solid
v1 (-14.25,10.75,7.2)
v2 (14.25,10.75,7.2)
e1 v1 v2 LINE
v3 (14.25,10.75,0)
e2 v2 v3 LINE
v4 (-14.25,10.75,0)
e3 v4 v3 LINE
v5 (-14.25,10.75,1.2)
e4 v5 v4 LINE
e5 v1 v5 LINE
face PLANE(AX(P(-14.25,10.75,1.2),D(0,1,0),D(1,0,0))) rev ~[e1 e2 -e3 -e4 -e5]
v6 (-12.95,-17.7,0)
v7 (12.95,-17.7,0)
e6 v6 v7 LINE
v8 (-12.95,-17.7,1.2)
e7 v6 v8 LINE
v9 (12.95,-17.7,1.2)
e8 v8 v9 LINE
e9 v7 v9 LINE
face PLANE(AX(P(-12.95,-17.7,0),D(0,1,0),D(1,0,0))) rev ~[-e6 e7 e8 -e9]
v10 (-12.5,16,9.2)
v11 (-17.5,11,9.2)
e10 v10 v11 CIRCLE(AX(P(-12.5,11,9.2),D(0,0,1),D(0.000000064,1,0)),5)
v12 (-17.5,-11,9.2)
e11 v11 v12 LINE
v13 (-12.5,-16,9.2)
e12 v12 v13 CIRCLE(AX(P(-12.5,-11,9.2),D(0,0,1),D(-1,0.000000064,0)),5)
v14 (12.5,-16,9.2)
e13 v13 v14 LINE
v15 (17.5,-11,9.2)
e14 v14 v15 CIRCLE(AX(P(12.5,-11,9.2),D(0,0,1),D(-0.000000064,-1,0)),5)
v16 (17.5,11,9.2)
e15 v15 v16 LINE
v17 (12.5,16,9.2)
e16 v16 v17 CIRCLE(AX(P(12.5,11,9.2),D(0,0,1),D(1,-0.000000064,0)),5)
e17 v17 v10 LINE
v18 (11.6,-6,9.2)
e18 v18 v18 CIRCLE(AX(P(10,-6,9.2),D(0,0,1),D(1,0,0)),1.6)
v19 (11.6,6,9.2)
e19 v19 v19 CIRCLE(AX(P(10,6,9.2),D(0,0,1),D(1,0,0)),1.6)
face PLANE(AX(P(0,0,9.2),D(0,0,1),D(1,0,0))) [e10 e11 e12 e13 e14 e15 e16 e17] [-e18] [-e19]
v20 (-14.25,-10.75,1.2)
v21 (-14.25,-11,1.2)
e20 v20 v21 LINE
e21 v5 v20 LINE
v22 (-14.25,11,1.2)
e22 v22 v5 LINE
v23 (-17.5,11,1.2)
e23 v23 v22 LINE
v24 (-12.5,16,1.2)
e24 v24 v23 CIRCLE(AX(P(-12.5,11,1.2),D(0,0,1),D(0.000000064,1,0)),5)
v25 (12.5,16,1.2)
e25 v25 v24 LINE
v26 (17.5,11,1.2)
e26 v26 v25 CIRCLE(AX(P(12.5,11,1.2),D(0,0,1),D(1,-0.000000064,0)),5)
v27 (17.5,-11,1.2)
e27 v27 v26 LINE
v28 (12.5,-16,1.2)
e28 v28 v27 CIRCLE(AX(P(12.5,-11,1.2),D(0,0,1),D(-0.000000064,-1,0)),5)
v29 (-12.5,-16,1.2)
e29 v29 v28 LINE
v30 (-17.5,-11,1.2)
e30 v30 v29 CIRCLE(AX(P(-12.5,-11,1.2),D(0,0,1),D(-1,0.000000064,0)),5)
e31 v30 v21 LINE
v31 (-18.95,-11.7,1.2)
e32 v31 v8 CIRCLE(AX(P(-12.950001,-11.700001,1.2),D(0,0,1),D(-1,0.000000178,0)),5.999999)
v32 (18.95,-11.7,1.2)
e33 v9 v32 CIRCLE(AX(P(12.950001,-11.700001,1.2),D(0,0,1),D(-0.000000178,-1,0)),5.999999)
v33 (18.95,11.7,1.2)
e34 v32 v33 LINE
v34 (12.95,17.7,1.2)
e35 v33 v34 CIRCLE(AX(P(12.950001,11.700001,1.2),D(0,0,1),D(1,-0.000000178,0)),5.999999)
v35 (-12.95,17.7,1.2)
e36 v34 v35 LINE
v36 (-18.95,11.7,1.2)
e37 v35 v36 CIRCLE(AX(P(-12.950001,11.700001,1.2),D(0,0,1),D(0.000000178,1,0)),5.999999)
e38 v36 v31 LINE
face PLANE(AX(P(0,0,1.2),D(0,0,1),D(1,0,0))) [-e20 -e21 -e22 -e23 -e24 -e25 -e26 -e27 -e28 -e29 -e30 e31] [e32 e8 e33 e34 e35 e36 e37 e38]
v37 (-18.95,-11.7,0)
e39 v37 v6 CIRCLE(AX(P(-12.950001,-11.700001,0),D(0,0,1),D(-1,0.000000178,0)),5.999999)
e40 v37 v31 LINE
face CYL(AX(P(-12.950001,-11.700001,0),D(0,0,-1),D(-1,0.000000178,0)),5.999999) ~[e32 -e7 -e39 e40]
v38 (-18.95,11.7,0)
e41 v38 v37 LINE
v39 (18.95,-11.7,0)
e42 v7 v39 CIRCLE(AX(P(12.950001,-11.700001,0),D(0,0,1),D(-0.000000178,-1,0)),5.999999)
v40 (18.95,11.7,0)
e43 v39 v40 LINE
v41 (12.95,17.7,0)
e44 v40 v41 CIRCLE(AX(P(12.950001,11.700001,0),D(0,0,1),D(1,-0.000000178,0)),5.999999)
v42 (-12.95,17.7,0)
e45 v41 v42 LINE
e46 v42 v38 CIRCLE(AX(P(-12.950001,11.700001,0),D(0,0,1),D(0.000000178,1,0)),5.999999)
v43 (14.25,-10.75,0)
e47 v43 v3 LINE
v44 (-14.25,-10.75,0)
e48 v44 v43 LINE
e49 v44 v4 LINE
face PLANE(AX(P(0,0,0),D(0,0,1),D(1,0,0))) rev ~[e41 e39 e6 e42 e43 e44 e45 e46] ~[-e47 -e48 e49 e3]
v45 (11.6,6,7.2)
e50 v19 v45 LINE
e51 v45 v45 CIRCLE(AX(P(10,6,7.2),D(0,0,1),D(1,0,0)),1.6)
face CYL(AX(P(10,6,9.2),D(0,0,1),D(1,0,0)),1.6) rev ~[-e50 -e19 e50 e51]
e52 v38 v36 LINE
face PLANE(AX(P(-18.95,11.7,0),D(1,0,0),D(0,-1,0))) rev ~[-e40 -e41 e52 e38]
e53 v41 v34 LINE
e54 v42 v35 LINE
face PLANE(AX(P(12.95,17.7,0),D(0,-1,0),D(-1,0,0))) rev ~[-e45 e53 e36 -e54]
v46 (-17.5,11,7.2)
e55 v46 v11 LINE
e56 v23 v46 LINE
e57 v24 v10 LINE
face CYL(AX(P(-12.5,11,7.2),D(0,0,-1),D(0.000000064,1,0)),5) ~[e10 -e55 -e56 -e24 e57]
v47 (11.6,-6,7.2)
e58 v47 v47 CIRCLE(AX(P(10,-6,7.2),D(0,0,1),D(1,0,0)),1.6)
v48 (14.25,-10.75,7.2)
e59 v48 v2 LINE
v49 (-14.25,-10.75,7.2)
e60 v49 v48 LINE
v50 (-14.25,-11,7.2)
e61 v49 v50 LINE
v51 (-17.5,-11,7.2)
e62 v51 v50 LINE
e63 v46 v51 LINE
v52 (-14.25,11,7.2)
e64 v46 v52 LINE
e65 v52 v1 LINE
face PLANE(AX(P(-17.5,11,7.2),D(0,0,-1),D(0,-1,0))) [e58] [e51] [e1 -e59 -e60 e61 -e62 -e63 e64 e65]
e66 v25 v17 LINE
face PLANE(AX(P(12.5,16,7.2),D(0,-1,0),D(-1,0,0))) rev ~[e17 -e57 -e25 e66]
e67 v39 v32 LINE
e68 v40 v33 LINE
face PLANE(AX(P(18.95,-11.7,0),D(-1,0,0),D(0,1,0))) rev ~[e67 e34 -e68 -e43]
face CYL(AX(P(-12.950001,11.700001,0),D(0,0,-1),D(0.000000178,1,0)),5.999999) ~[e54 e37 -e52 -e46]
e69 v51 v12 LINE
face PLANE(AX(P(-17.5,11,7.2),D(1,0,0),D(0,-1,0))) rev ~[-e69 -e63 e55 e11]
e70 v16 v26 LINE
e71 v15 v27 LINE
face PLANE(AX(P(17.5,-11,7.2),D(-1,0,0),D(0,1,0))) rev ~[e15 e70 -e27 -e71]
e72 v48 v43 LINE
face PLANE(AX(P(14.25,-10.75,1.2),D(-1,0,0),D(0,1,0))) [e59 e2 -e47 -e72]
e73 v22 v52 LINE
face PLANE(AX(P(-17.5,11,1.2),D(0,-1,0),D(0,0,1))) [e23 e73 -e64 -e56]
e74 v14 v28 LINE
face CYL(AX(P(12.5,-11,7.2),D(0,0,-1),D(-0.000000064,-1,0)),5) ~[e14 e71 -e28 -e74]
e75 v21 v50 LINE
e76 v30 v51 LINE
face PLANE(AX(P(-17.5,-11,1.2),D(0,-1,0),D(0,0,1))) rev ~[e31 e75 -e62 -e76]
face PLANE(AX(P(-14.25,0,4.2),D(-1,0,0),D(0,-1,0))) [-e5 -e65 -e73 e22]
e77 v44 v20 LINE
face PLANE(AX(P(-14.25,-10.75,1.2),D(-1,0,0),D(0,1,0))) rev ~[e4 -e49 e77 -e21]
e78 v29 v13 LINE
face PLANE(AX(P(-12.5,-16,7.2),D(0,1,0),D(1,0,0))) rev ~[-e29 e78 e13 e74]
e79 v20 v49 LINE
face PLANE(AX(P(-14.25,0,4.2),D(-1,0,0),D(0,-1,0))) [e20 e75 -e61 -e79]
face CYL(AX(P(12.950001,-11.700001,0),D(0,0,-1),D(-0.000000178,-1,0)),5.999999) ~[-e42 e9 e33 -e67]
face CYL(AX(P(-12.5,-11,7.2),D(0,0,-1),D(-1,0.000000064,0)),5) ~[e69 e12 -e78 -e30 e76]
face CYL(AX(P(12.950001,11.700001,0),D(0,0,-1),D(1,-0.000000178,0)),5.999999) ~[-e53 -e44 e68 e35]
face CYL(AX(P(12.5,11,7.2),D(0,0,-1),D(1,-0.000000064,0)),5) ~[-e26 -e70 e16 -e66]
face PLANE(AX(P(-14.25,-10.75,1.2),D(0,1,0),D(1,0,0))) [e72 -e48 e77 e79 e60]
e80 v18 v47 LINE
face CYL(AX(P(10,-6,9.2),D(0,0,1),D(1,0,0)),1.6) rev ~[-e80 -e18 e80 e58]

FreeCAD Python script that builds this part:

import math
import FreeCAD as App
import Part
import Sketcher
from FreeCAD import Vector
Q = App.Units.Quantity

doc = App.newDocument("Part")
body = doc.addObject("PartDesign::Body", "Body")

# Sketch on XY plane
sketch1 = body.newObject("Sketcher::SketchObject", "Sketch")
sketch1.AttachmentSupport = (doc.getObject("XY_Plane"), [""])
sketch1.MapMode = "FlatFace"
sketch1.addGeometry([
    Part.ArcOfCircle(Part.Circle(Vector(13, 12, 0), Vector(0, 0, 1), 6), math.radians(0), math.radians(90)),  # 0
    Part.LineSegment(Vector(13, 18, 0), Vector(-13, 18, 0)),  # 1
    Part.ArcOfCircle(Part.Circle(Vector(-13, 12, 0), Vector(0, 0, 1), 6), math.radians(90), math.radians(180)),  # 2
    Part.LineSegment(Vector(-19, 12, 0), Vector(-19, -12, 0)),  # 3
    Part.ArcOfCircle(Part.Circle(Vector(-13, -12, 0), Vector(0, 0, 1), 6), math.radians(180), math.radians(270)),  # 4
    Part.LineSegment(Vector(-13, -18, 0), Vector(13, -18, 0)),  # 5
    Part.ArcOfCircle(Part.Circle(Vector(13, -12, 0), Vector(0, 0, 1), 6), math.radians(-90), math.radians(0)),  # 6
    Part.LineSegment(Vector(19, -12, 0), Vector(19, 12, 0)),  # 7
    Part.LineSegment(Vector(14, -11, 0), Vector(-14, -11, 0)),  # 8
    Part.LineSegment(Vector(-14, -11, 0), Vector(-14, 11, 0)),  # 9
    Part.LineSegment(Vector(-14, 11, 0), Vector(14, 11, 0)),  # 10
    Part.LineSegment(Vector(14, 11, 0), Vector(14, -11, 0)),  # 11
], False)
sketch1.addConstraint([
    Sketcher.Constraint("Tangent", 0, 2, 1, 1),
    Sketcher.Constraint("Tangent", 1, 2, 2, 1),
    Sketcher.Constraint("Tangent", 2, 2, 3, 1),
    Sketcher.Constraint("Tangent", 3, 2, 4, 1),
    Sketcher.Constraint("Tangent", 4, 2, 5, 1),
    Sketcher.Constraint("Tangent", 5, 2, 6, 1),
    Sketcher.Constraint("Tangent", 6, 2, 7, 1),
    Sketcher.Constraint("Tangent", 7, 2, 0, 1),
    Sketcher.Constraint("Coincident", 8, 2, 9, 1),
    Sketcher.Constraint("Coincident", 9, 2, 10, 1),
    Sketcher.Constraint("Coincident", 10, 2, 11, 1),
    Sketcher.Constraint("Coincident", 11, 2, 8, 1),
    Sketcher.Constraint("Horizontal", 1),
    Sketcher.Constraint("Vertical", 3),
    Sketcher.Constraint("Horizontal", 5),
    Sketcher.Constraint("Vertical", 7),
    Sketcher.Constraint("Horizontal", 8),
    Sketcher.Constraint("Vertical", 9),
    Sketcher.Constraint("Horizontal", 10),
    Sketcher.Constraint("Vertical", 11),
    Sketcher.Constraint("Equal", 0, 2),
    Sketcher.Constraint("Equal", 2, 4),
    Sketcher.Constraint("Equal", 4, 6),
    Sketcher.Constraint("Symmetric", 0, 3, 4, 3, -1, 1),
    Sketcher.Constraint("Symmetric", 8, 2, 10, 2, -1, 1),
    Sketcher.Constraint("Radius", 0, Q("5.999999 mm")),
    Sketcher.Constraint("DistanceX", 1, 2, 1, 1, Q("25.9 mm")),
    Sketcher.Constraint("DistanceX", 8, 2, 8, 1, Q("28.5 mm")),
    Sketcher.Constraint("DistanceY", 3, 2, 3, 1, Q("23.4 mm")),
    Sketcher.Constraint("DistanceY", 9, 1, 9, 2, Q("21.5 mm")),
])
pad1 = body.newObject("PartDesign::Pad", "Pad")
pad1.Profile = sketch1
pad1.Length = 1.2

# Sketch on XY plane
sketch2 = body.newObject("Sketcher::SketchObject", "Sketch001")
sketch2.AttachmentSupport = (doc.getObject("XY_Plane"), [""])
sketch2.MapMode = "FlatFace"
sketch2.AttachmentOffset = App.Placement(Vector(0, 0, 1.2), App.Rotation())
sketch2.addGeometry([
    Part.ArcOfCircle(Part.Circle(Vector(12.5, 11, 0), Vector(0, 0, 1), 5), math.radians(0), math.radians(90)),  # 0
    Part.LineSegment(Vector(12.5, 16, 0), Vector(-12.5, 16, 0)),  # 1
    Part.ArcOfCircle(Part.Circle(Vector(-12.5, 11, 0), Vector(0, 0, 1), 5), math.radians(90), math.radians(180)),  # 2
    Part.LineSegment(Vector(-17.5, 11, 0), Vector(-17.5, -11, 0)),  # 3
    Part.ArcOfCircle(Part.Circle(Vector(-12.5, -11, 0), Vector(0, 0, 1), 5), math.radians(180), math.radians(270)),  # 4
    Part.LineSegment(Vector(-12.5, -16, 0), Vector(12.5, -16, 0)),  # 5
    Part.ArcOfCircle(Part.Circle(Vector(12.5, -11, 0), Vector(0, 0, 1), 5), math.radians(-90), math.radians(0)),  # 6
    Part.LineSegment(Vector(17.5, -11, 0), Vector(17.5, 11, 0)),  # 7
    Part.LineSegment(Vector(14.2, -10.8, 0), Vector(-14.2, -10.8, 0)),  # 8
    Part.LineSegment(Vector(-14.2, -10.8, 0), Vector(-14.2, 10.8, 0)),  # 9
    Part.LineSegment(Vector(-14.2, 10.8, 0), Vector(14.2, 10.8, 0)),  # 10
    Part.LineSegment(Vector(14.2, 10.8, 0), Vector(14.2, -10.8, 0)),  # 11
], False)
sketch2.addConstraint([
    Sketcher.Constraint("Tangent", 0, 2, 1, 1),
    Sketcher.Constraint("Tangent", 1, 2, 2, 1),
    Sketcher.Constraint("Tangent", 2, 2, 3, 1),
    Sketcher.Constraint("Tangent", 3, 2, 4, 1),
    Sketcher.Constraint("Tangent", 4, 2, 5, 1),
    Sketcher.Constraint("Tangent", 5, 2, 6, 1),
    Sketcher.Constraint("Tangent", 6, 2, 7, 1),
    Sketcher.Constraint("Tangent", 7, 2, 0, 1),
    Sketcher.Constraint("Coincident", 8, 2, 9, 1),
    Sketcher.Constraint("Coincident", 9, 2, 10, 1),
    Sketcher.Constraint("Coincident", 10, 2, 11, 1),
    Sketcher.Constraint("Coincident", 11, 2, 8, 1),
    Sketcher.Constraint("Horizontal", 1),
    Sketcher.Constraint("Vertical", 3),
    Sketcher.Constraint("Horizontal", 5),
    Sketcher.Constraint("Vertical", 7),
    Sketcher.Constraint("Horizontal", 8),
    Sketcher.Constraint("Vertical", 9),
    Sketcher.Constraint("Horizontal", 10),
    Sketcher.Constraint("Vertical", 11),
    Sketcher.Constraint("Equal", 0, 2),
    Sketcher.Constraint("Equal", 2, 4),
    Sketcher.Constraint("Equal", 4, 6),
    Sketcher.Constraint("Symmetric", 0, 3, 4, 3, -1, 1),
    Sketcher.Constraint("Symmetric", 8, 2, 10, 2, -1, 1),
    Sketcher.Constraint("Radius", 0, Q("5 mm")),
    Sketcher.Constraint("DistanceX", 1, 2, 1, 1, Q("25 mm")),
    Sketcher.Constraint("DistanceY", 3, 2, 3, 1, Q("22 mm")),
    Sketcher.Constraint("DistanceX", 8, 2, 8, 1, Q("28.5 mm")),
    Sketcher.Constraint("DistanceY", 9, 1, 9, 2, Q("21.5 mm")),
])
pad2 = body.newObject("PartDesign::Pad", "Pad001")
pad2.Profile = sketch2
pad2.Length = 6

# Sketch on XY plane
sketch3 = body.newObject("Sketcher::SketchObject", "Sketch002")
sketch3.AttachmentSupport = (doc.getObject("XY_Plane"), [""])
sketch3.MapMode = "FlatFace"
sketch3.AttachmentOffset = App.Placement(Vector(0, 0, 7.2), App.Rotation())
sketch3.addGeometry([
    Part.ArcOfCircle(Part.Circle(Vector(12.5, 11, 0), Vector(0, 0, 1), 5), math.radians(0), math.radians(90)),  # 0
    Part.LineSegment(Vector(12.5, 16, 0), Vector(-12.5, 16, 0)),  # 1
    Part.ArcOfCircle(Part.Circle(Vector(-12.5, 11, 0), Vector(0, 0, 1), 5), math.radians(90), math.radians(180)),  # 2
    Part.LineSegment(Vector(-17.5, 11, 0), Vector(-17.5, -11, 0)),  # 3
    Part.ArcOfCircle(Part.Circle(Vector(-12.5, -11, 0), Vector(0, 0, 1), 5), math.radians(180), math.radians(270)),  # 4
    Part.LineSegment(Vector(-12.5, -16, 0), Vector(12.5, -16, 0)),  # 5
    Part.ArcOfCircle(Part.Circle(Vector(12.5, -11, 0), Vector(0, 0, 1), 5), math.radians(-90), math.radians(0)),  # 6
    Part.LineSegment(Vector(17.5, -11, 0), Vector(17.5, 11, 0)),  # 7
], False)
sketch3.addConstraint([
    Sketcher.Constraint("Tangent", 0, 2, 1, 1),
    Sketcher.Constraint("Tangent", 1, 2, 2, 1),
    Sketcher.Constraint("Tangent", 2, 2, 3, 1),
    Sketcher.Constraint("Tangent", 3, 2, 4, 1),
    Sketcher.Constraint("Tangent", 4, 2, 5, 1),
    Sketcher.Constraint("Tangent", 5, 2, 6, 1),
    Sketcher.Constraint("Tangent", 6, 2, 7, 1),
    Sketcher.Constraint("Tangent", 7, 2, 0, 1),
    Sketcher.Constraint("Horizontal", 1),
    Sketcher.Constraint("Vertical", 3),
    Sketcher.Constraint("Horizontal", 5),
    Sketcher.Constraint("Vertical", 7),
    Sketcher.Constraint("Equal", 0, 2),
    Sketcher.Constraint("Equal", 2, 4),
    Sketcher.Constraint("Equal", 4, 6),
    Sketcher.Constraint("Symmetric", 0, 3, 4, 3, -1, 1),
    Sketcher.Constraint("Radius", 0, Q("5 mm")),
    Sketcher.Constraint("DistanceX", 1, 2, 1, 1, Q("25 mm")),
    Sketcher.Constraint("DistanceY", 3, 2, 3, 1, Q("22 mm")),
])
pad3 = body.newObject("PartDesign::Pad", "Pad002")
pad3.Profile = sketch3
pad3.Length = 2

# Sketch on YZ plane
sketch4 = body.newObject("Sketcher::SketchObject", "Sketch003")
sketch4.AttachmentSupport = (doc.getObject("YZ_Plane"), [""])
sketch4.MapMode = "FlatFace"
sketch4.AttachmentOffset = App.Placement(Vector(0, 0, -17.5), App.Rotation())
sketch4.addGeometry([
    Part.LineSegment(Vector(11, 7, 0), Vector(11, 1, 0)),
    Part.LineSegment(Vector(11, 1, 0), Vector(-11, 1, 0)),
    Part.LineSegment(Vector(-11, 1, 0), Vector(-11, 7, 0)),
    Part.LineSegment(Vector(-11, 7, 0), Vector(11, 7, 0)),
], False)
sketch4.addConstraint([
    Sketcher.Constraint("Coincident", 0, 2, 1, 1),
    Sketcher.Constraint("Coincident", 1, 2, 2, 1),
    Sketcher.Constraint("Coincident", 2, 2, 3, 1),
    Sketcher.Constraint("Coincident", 3, 2, 0, 1),
    Sketcher.Constraint("Vertical", 0),
    Sketcher.Constraint("Horizontal", 1),
    Sketcher.Constraint("Vertical", 2),
    Sketcher.Constraint("Horizontal", 3),
    Sketcher.Constraint("DistanceX", 1, 2, 1, 1, Q("22 mm")),
    Sketcher.Constraint("DistanceY", 0, 2, 0, 1, Q("6 mm")),
    Sketcher.Constraint("DistanceX", -1, 1, 0, 2, Q("11 mm")),
    Sketcher.Constraint("DistanceY", -1, 1, 0, 2, Q("1.2 mm")),
])
pocket1 = body.newObject("PartDesign::Pocket", "Pocket")
pocket1.Profile = sketch4
pocket1.Length = 3.25
pocket1.Reversed = True

# Sketch on XY plane
sketch5 = body.newObject("Sketcher::SketchObject", "Sketch004")
sketch5.AttachmentSupport = (doc.getObject("XY_Plane"), [""])
sketch5.MapMode = "FlatFace"
sketch5.AttachmentOffset = App.Placement(Vector(0, 0, 9.2), App.Rotation())
sketch5.addGeometry([
    Part.Circle(Vector(10, 6, 0), Vector(0, 0, 1), 1.6),
    Part.Circle(Vector(10, -6, 0), Vector(0, 0, 1), 1.6),
], False)
sketch5.addConstraint([
    Sketcher.Constraint("Equal", 0, 1),
    Sketcher.Constraint("Symmetric", 0, 3, 1, 3, -1),
    Sketcher.Constraint("Diameter", 0, Q("3.2 mm")),
    Sketcher.Constraint("DistanceX", -1, 1, 0, 3, Q("10 mm")),
    Sketcher.Constraint("DistanceY", -1, 1, 0, 3, Q("6 mm")),
])
pocket2 = body.newObject("PartDesign::Pocket", "Pocket001")
pocket2.Profile = sketch5
pocket2.Type = "ThroughAll"

doc.recompute()
